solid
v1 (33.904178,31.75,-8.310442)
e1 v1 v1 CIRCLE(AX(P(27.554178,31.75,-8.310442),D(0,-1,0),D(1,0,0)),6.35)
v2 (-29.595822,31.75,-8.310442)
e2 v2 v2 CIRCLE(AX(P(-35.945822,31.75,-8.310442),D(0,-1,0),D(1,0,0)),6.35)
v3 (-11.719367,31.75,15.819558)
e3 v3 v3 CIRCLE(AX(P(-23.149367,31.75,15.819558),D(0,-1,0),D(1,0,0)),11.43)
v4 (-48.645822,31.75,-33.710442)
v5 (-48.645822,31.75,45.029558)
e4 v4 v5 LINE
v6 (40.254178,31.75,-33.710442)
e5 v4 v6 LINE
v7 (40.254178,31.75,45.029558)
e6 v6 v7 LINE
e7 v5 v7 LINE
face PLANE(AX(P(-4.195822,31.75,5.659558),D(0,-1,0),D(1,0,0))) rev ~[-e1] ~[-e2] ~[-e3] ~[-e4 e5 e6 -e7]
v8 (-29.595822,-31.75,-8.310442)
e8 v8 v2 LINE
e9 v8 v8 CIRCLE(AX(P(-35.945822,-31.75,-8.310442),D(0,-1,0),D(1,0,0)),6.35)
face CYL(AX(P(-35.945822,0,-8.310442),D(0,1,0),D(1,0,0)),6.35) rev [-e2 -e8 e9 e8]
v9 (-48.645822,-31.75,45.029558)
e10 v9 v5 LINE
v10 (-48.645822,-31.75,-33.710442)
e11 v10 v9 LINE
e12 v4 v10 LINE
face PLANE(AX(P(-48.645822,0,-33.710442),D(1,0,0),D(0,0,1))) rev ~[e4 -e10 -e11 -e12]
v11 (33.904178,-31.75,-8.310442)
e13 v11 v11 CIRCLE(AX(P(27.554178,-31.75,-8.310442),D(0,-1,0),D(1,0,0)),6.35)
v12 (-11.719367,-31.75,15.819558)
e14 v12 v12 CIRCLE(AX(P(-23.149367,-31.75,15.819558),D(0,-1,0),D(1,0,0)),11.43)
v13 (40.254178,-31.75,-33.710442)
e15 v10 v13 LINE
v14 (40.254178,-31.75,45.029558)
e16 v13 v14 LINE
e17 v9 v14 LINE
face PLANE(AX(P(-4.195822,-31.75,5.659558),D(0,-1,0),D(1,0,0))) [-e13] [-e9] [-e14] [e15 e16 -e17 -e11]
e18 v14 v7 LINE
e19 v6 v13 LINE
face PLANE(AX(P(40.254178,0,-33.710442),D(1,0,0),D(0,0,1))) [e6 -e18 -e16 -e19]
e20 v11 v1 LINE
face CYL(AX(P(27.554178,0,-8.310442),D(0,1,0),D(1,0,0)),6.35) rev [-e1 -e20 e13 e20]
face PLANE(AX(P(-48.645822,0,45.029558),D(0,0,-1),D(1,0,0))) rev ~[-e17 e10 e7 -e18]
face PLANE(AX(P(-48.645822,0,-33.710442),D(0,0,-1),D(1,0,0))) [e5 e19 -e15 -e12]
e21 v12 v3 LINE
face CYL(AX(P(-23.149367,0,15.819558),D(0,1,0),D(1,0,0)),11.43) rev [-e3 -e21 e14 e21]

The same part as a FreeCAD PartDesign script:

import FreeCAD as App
import Part
import Sketcher
Q = App.Units.Quantity


def add_polygon(sketch, points):
    """Adds a closed chain of lines whose ends are joined by coincident constraints."""
    first, n = sketch.GeometryCount, len(points)
    for a, b in zip(points, points[1:] + points[:1]):
        sketch.addGeometry(Part.LineSegment(App.Vector(*a, 0), App.Vector(*b, 0)), False)
    for i in range(n):
        sketch.addConstraint(Sketcher.Constraint("Coincident", first + i, 2, first + (i + 1) % n, 1))

doc = App.newDocument("Part")
body = doc.addObject("PartDesign::Body", "Body")

# Sketch on XZ plane
sketch1 = body.newObject("Sketcher::SketchObject", "Sketch")
sketch1.AttachmentSupport = (doc.getObject("XZ_Plane"), [""])
sketch1.MapMode = "FlatFace"
add_polygon(sketch1, [(-49, 45), (-49, -34), (40, -34), (40, 45)])  # lines 0-3
sketch1.addGeometry(Part.Circle(App.Vector(-36, -8, 0), App.Vector(0, 0, 1), 6), False)  # 4
sketch1.addGeometry(Part.Circle(App.Vector(28, -8, 0), App.Vector(0, 0, 1), 6), False)  # 5
sketch1.addGeometry(Part.Circle(App.Vector(-23, 16, 0), App.Vector(0, 0, 1), 11), False)  # 6
sketch1.addConstraint(Sketcher.Constraint("Vertical", 0))
sketch1.addConstraint(Sketcher.Constraint("Horizontal", 1))
sketch1.addConstraint(Sketcher.Constraint("Vertical", 2))
sketch1.addConstraint(Sketcher.Constraint("Horizontal", 3))
sketch1.addConstraint(Sketcher.Constraint("Equal", 4, 5))
sketch1.addConstraint(Sketcher.Constraint("Horizontal", 4, 3, 5, 3))
sketch1.addConstraint(Sketcher.Constraint("Diameter", 4, Q("0.5 in")))
sketch1.addConstraint(Sketcher.Constraint("Diameter", 6, Q("0.9 in")))
sketch1.addConstraint(Sketcher.Constraint("DistanceX", 1, 1, 1, 2, Q("3.5 in")))
sketch1.addConstraint(Sketcher.Constraint("DistanceY", 0, 2, 0, 1, Q("3.1 in")))
sketch1.addConstraint(Sketcher.Constraint("DistanceY", 0, 2, 4, 3, Q("1 in")))
sketch1.addConstraint(Sketcher.Constraint("DistanceX", 0, 2, 5, 3, Q("3 in")))
sketch1.addConstraint(Sketcher.Constraint("DistanceX", 4, 3, 1, 2, Q("3 in")))
sketch1.addConstraint(Sketcher.Constraint("DistanceY", 4, 3, 6, 3, Q("0.95 in")))
sketch1.addConstraint(Sketcher.Constraint("DistanceX", -1, 1, 5, 3, Q("27.554178 mm")))
sketch1.addConstraint(Sketcher.Constraint("DistanceY", -1, 1, 6, 3, Q("15.819558 mm")))
sketch1.addConstraint(Sketcher.Constraint("DistanceX", 6, 3, -1, 1, Q("23.149367 mm")))
pad1 = body.newObject("PartDesign::Pad", "Pad")
pad1.Profile = sketch1
pad1.Length = Q("2.5 in")
pad1.Midplane = True

doc.recompute()
